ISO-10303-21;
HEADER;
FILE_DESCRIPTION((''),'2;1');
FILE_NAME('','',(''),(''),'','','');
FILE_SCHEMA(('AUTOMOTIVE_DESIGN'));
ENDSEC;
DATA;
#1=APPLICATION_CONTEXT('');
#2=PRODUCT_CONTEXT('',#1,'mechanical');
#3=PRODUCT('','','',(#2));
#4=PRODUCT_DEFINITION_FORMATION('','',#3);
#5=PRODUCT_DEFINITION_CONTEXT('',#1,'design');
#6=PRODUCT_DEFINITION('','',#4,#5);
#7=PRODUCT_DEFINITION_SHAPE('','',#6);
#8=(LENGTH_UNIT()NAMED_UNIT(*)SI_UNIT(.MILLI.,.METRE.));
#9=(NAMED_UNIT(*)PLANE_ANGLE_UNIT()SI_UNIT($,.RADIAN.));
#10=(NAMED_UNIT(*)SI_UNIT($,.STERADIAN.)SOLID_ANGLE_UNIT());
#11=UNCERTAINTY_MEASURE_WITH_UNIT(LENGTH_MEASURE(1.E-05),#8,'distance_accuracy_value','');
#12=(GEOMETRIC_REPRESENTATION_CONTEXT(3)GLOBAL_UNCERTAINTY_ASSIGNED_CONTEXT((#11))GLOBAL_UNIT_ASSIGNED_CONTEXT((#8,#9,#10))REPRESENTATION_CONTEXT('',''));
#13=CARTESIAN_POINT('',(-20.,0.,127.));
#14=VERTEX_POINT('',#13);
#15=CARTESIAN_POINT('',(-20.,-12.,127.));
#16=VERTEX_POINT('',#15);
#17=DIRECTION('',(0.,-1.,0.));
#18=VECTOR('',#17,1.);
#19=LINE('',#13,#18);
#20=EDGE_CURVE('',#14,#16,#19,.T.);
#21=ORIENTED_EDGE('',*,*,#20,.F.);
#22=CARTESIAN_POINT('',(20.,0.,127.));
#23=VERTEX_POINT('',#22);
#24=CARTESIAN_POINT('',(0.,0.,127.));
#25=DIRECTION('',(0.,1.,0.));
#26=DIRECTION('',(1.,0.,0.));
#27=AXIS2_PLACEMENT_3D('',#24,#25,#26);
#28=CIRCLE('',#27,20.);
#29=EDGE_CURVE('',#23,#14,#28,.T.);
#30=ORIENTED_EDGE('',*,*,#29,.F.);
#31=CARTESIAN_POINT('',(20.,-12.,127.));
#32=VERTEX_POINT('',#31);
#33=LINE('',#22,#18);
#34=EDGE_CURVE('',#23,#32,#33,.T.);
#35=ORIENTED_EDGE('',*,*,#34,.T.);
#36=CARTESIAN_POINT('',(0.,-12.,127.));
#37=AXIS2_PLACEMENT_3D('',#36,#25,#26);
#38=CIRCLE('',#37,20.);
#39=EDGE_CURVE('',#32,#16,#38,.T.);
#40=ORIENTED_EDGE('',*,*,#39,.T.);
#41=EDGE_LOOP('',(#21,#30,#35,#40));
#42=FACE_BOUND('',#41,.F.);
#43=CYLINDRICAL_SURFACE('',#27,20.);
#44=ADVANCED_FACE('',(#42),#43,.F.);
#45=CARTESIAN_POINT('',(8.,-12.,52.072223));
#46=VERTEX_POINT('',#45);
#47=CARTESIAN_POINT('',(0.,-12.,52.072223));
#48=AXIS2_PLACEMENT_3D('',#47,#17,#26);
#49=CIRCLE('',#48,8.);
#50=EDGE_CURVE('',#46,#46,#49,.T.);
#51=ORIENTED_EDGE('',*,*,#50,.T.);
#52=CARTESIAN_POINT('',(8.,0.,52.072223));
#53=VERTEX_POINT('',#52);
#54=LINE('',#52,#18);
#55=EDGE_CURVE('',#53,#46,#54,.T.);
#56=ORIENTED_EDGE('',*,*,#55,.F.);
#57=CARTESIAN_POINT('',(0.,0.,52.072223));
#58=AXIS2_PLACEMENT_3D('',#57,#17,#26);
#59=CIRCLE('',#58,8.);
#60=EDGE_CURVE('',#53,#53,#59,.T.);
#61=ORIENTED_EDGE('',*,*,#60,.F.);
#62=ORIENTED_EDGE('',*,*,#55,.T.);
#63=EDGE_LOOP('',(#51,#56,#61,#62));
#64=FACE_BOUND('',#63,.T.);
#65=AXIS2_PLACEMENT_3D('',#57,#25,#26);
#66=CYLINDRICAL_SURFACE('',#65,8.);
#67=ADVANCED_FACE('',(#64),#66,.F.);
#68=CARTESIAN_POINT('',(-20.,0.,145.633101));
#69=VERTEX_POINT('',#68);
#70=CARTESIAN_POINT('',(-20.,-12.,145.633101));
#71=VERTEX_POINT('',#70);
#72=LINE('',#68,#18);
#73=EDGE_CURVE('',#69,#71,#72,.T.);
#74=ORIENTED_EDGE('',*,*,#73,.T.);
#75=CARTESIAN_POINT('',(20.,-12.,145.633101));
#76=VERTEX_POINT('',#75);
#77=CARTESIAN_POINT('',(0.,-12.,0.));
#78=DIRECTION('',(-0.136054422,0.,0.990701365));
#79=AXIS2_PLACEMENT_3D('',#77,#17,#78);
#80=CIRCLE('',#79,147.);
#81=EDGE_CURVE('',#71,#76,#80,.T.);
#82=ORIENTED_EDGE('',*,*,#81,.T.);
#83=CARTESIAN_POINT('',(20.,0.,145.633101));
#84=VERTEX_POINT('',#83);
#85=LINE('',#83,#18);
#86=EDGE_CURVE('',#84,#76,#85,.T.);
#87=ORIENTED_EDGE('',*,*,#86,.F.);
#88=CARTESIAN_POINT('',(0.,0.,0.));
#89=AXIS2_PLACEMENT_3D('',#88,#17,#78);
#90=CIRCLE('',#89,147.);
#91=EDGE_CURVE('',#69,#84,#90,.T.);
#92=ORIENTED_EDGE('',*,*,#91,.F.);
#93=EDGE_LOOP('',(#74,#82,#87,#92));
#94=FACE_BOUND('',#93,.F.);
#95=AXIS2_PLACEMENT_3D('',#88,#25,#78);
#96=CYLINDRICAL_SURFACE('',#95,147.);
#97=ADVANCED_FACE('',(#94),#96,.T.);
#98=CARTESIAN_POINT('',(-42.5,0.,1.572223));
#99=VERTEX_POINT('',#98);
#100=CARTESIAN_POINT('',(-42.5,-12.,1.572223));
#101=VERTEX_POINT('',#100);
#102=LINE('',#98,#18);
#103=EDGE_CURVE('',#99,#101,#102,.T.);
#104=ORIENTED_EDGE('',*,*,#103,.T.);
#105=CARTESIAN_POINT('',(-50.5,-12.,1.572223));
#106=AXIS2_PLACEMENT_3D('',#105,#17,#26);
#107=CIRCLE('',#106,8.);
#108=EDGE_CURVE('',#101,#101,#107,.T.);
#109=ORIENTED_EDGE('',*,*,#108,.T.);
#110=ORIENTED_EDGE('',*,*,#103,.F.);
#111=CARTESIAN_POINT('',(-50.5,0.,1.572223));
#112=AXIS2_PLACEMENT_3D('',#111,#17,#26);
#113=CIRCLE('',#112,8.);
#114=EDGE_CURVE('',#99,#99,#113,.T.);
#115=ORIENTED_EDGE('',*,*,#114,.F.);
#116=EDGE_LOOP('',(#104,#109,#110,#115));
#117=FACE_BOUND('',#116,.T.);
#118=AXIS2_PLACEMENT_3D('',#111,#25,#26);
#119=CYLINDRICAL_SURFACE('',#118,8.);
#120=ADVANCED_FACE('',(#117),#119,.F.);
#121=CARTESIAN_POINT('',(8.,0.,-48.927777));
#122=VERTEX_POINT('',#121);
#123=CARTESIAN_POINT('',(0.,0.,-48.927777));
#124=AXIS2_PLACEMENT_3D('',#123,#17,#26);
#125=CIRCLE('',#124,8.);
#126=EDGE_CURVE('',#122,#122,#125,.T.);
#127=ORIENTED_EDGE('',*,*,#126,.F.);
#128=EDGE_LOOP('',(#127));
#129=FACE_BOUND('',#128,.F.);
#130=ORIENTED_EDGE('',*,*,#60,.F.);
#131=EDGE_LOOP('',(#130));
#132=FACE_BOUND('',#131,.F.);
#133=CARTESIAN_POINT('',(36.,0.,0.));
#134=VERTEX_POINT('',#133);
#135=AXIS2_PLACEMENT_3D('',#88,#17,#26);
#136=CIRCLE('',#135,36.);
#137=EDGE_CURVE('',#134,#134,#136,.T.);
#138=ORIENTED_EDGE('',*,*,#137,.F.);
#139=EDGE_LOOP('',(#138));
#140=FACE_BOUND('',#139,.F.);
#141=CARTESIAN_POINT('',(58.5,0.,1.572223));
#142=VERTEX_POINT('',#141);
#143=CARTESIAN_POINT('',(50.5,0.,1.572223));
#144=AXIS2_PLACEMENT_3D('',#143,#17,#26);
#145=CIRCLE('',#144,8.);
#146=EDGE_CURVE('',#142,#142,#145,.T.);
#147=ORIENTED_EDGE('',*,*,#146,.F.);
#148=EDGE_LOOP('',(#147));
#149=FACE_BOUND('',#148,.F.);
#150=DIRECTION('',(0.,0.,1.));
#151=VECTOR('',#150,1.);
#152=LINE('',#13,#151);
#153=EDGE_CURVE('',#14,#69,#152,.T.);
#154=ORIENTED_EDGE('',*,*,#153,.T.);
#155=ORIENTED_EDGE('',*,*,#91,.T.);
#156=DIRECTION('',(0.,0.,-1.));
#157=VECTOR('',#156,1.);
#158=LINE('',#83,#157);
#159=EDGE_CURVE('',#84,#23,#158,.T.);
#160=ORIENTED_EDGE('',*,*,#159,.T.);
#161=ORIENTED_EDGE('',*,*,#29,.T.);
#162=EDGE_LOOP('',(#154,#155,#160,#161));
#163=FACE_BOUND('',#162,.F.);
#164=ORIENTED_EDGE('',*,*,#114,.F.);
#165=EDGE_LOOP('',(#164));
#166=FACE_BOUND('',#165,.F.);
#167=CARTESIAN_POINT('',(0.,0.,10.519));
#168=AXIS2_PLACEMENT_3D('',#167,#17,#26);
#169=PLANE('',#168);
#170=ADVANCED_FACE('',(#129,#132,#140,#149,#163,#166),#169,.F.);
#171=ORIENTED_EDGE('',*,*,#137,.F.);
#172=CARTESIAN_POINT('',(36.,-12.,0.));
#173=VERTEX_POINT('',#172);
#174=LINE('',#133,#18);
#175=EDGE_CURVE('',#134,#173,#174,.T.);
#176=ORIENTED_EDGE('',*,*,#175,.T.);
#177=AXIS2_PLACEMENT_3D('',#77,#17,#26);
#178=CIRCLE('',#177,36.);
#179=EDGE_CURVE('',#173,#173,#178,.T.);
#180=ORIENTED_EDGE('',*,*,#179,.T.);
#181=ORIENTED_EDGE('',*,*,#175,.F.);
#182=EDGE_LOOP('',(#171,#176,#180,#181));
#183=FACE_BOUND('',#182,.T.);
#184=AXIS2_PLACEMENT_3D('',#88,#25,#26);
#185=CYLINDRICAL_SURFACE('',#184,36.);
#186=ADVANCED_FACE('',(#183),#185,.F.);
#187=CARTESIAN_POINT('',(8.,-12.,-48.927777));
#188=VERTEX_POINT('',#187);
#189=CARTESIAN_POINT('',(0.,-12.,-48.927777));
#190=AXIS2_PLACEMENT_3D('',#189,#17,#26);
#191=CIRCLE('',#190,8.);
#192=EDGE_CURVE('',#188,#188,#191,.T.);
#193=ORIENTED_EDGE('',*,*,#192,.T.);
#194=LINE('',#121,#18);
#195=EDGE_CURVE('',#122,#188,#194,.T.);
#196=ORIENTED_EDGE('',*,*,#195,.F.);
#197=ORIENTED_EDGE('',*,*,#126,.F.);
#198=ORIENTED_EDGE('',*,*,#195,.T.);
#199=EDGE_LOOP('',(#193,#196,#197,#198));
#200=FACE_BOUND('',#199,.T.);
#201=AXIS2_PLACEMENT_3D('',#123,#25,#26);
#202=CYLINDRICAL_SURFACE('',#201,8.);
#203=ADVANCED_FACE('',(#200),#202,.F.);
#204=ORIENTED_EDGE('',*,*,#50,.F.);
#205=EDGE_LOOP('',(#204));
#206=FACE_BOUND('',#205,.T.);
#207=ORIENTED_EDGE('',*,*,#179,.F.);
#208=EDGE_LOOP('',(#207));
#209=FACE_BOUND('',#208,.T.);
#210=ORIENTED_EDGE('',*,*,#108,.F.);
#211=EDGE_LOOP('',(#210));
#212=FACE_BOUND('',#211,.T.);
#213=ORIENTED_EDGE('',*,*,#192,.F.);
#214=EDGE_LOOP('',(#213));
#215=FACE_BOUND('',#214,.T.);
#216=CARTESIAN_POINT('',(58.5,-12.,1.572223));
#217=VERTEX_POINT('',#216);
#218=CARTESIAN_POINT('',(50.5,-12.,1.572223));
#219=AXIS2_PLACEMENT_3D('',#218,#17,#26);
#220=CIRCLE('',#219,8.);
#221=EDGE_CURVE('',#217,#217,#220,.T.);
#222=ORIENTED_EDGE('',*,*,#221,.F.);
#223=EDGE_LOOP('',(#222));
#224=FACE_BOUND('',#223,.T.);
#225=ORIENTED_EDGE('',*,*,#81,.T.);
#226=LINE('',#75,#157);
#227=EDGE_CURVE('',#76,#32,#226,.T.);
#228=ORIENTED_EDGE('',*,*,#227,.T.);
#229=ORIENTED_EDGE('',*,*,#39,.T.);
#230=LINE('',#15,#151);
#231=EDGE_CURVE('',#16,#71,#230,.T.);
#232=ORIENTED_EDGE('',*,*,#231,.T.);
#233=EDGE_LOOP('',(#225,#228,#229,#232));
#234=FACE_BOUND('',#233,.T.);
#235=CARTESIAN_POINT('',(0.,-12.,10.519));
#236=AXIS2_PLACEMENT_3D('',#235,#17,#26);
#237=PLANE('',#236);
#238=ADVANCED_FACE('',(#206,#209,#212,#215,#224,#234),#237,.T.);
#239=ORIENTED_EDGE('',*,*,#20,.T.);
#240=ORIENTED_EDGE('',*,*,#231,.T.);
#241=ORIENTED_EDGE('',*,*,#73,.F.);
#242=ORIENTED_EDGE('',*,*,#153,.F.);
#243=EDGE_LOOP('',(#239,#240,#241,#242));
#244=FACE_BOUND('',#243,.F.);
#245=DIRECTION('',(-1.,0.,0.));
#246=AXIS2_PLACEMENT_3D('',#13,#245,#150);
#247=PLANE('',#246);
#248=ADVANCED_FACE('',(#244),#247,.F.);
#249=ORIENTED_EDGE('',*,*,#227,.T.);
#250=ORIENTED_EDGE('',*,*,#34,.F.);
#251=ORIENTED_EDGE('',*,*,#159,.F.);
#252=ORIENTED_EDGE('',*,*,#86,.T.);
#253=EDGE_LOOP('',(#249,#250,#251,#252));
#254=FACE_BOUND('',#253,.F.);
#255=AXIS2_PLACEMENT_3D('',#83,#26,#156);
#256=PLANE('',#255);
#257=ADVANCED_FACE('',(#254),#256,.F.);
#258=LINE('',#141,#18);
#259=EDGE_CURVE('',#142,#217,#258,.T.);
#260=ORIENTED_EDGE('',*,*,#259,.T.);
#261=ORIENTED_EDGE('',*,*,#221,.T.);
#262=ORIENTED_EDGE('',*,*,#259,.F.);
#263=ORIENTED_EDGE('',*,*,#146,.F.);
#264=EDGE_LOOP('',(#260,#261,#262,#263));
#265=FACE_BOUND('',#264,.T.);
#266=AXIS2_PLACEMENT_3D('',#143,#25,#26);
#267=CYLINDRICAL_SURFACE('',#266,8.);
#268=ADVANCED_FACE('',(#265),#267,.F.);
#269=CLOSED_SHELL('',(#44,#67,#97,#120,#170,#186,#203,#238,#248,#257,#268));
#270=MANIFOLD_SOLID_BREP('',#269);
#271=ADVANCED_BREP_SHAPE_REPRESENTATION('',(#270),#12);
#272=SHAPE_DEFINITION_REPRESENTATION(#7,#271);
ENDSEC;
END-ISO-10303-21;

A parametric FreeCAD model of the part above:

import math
import FreeCAD as App
import Part
import Sketcher

V = App.Vector

doc = App.newDocument("Part")
params = doc.addObject("Spreadsheet::Sheet", "Params")
for row, (alias, value) in enumerate([
    ("sketch1_diameter", "16 mm"),
    ("sketch1_diameter2", "72 mm"),
    ("sketch1_radius", "147 mm"),
    ("sketch1_radius2", "20 mm"),
    ("pad1_length", "12 mm"),
], start=1):
    params.set(f"A{row}", alias)
    params.set(f"B{row}", "=" + value)
    params.setAlias(f"B{row}", alias)

body = doc.addObject("PartDesign::Body", "Body")

sketch1 = doc.addObject("Sketcher::SketchObject", "Sketch")
body.addObject(sketch1)
sketch1.AttachmentSupport = (doc.XZ_Plane, [""])
sketch1.MapMode = "FlatFace"
sketch1.addGeometry([
    Part.LineSegment(V(-20, 127, 0), V(-20, 146, 0)),
    Part.ArcOfCircle(Part.Circle(V(0, 0, 0), V(0, 0, 1), 147), math.radians(98), math.radians(442)),
    Part.LineSegment(V(20, 146, 0), V(20, 127, 0)),
    Part.ArcOfCircle(Part.Circle(V(0, 127, 0), V(0, 0, 1), 20), math.radians(180), math.radians(360)),
    Part.Circle(V(0, -49, 0), V(0, 0, 1), 8),
    Part.Circle(V(0, 0, 0), V(0, 0, 1), 36),
    Part.Circle(V(-50, 2, 0), V(0, 0, 1), 8),
    Part.Circle(V(50, 2, 0), V(0, 0, 1), 8),
    Part.Circle(V(0, 52, 0), V(0, 0, 1), 8),
], False)
sketch1.addConstraint([
    Sketcher.Constraint("Coincident", 0, 2, 1, 1),
    Sketcher.Constraint("Coincident", 1, 2, 2, 1),
    Sketcher.Constraint("Tangent", 2, 2, 3, 2),
    Sketcher.Constraint("Tangent", 3, 1, 0, 1),
    Sketcher.Constraint("Vertical", 0),
    Sketcher.Constraint("Vertical", 2),
    Sketcher.Constraint("Coincident", 1, 3, -1, 1),
    Sketcher.Constraint("Coincident", 5, 3, -1, 1),
    Sketcher.Constraint("Equal", 4, 6),
    Sketcher.Constraint("Equal", 6, 7),
    Sketcher.Constraint("Equal", 7, 8),
    Sketcher.Constraint("Symmetric", 6, 3, 7, 3, -2),
    Sketcher.Constraint("PointOnObject", 3, 3, -2),
    Sketcher.Constraint("PointOnObject", 4, 3, -2),
    Sketcher.Constraint("PointOnObject", 8, 3, -2),
    Sketcher.Constraint("Diameter", 4, 16.0),
    Sketcher.Constraint("Diameter", 5, 72.0),
    Sketcher.Constraint("Radius", 1, 147.0),
    Sketcher.Constraint("Radius", 3, 20.0),
    Sketcher.Constraint("DistanceY", -1, 1, 3, 3, 127.0),
    Sketcher.Constraint("DistanceX", 6, 3, 7, 3, 101.0),
    Sketcher.Constraint("DistanceY", 4, 3, 6, 3, 50.5),
    Sketcher.Constraint("DistanceY", 6, 3, 8, 3, 50.5),
    Sketcher.Constraint("DistanceY", 8, 3, 0, 2, 93.560878),
])
sketch1.setExpression("Constraints[15]", "Params.sketch1_diameter")
sketch1.setExpression("Constraints[16]", "Params.sketch1_diameter2")
sketch1.setExpression("Constraints[17]", "Params.sketch1_radius")
sketch1.setExpression("Constraints[18]", "Params.sketch1_radius2")
pad1 = doc.addObject("PartDesign::Pad", "Pad")
body.addObject(pad1)
pad1.Profile = sketch1
pad1.setExpression("Length", "Params.pad1_length")

doc.recompute()
